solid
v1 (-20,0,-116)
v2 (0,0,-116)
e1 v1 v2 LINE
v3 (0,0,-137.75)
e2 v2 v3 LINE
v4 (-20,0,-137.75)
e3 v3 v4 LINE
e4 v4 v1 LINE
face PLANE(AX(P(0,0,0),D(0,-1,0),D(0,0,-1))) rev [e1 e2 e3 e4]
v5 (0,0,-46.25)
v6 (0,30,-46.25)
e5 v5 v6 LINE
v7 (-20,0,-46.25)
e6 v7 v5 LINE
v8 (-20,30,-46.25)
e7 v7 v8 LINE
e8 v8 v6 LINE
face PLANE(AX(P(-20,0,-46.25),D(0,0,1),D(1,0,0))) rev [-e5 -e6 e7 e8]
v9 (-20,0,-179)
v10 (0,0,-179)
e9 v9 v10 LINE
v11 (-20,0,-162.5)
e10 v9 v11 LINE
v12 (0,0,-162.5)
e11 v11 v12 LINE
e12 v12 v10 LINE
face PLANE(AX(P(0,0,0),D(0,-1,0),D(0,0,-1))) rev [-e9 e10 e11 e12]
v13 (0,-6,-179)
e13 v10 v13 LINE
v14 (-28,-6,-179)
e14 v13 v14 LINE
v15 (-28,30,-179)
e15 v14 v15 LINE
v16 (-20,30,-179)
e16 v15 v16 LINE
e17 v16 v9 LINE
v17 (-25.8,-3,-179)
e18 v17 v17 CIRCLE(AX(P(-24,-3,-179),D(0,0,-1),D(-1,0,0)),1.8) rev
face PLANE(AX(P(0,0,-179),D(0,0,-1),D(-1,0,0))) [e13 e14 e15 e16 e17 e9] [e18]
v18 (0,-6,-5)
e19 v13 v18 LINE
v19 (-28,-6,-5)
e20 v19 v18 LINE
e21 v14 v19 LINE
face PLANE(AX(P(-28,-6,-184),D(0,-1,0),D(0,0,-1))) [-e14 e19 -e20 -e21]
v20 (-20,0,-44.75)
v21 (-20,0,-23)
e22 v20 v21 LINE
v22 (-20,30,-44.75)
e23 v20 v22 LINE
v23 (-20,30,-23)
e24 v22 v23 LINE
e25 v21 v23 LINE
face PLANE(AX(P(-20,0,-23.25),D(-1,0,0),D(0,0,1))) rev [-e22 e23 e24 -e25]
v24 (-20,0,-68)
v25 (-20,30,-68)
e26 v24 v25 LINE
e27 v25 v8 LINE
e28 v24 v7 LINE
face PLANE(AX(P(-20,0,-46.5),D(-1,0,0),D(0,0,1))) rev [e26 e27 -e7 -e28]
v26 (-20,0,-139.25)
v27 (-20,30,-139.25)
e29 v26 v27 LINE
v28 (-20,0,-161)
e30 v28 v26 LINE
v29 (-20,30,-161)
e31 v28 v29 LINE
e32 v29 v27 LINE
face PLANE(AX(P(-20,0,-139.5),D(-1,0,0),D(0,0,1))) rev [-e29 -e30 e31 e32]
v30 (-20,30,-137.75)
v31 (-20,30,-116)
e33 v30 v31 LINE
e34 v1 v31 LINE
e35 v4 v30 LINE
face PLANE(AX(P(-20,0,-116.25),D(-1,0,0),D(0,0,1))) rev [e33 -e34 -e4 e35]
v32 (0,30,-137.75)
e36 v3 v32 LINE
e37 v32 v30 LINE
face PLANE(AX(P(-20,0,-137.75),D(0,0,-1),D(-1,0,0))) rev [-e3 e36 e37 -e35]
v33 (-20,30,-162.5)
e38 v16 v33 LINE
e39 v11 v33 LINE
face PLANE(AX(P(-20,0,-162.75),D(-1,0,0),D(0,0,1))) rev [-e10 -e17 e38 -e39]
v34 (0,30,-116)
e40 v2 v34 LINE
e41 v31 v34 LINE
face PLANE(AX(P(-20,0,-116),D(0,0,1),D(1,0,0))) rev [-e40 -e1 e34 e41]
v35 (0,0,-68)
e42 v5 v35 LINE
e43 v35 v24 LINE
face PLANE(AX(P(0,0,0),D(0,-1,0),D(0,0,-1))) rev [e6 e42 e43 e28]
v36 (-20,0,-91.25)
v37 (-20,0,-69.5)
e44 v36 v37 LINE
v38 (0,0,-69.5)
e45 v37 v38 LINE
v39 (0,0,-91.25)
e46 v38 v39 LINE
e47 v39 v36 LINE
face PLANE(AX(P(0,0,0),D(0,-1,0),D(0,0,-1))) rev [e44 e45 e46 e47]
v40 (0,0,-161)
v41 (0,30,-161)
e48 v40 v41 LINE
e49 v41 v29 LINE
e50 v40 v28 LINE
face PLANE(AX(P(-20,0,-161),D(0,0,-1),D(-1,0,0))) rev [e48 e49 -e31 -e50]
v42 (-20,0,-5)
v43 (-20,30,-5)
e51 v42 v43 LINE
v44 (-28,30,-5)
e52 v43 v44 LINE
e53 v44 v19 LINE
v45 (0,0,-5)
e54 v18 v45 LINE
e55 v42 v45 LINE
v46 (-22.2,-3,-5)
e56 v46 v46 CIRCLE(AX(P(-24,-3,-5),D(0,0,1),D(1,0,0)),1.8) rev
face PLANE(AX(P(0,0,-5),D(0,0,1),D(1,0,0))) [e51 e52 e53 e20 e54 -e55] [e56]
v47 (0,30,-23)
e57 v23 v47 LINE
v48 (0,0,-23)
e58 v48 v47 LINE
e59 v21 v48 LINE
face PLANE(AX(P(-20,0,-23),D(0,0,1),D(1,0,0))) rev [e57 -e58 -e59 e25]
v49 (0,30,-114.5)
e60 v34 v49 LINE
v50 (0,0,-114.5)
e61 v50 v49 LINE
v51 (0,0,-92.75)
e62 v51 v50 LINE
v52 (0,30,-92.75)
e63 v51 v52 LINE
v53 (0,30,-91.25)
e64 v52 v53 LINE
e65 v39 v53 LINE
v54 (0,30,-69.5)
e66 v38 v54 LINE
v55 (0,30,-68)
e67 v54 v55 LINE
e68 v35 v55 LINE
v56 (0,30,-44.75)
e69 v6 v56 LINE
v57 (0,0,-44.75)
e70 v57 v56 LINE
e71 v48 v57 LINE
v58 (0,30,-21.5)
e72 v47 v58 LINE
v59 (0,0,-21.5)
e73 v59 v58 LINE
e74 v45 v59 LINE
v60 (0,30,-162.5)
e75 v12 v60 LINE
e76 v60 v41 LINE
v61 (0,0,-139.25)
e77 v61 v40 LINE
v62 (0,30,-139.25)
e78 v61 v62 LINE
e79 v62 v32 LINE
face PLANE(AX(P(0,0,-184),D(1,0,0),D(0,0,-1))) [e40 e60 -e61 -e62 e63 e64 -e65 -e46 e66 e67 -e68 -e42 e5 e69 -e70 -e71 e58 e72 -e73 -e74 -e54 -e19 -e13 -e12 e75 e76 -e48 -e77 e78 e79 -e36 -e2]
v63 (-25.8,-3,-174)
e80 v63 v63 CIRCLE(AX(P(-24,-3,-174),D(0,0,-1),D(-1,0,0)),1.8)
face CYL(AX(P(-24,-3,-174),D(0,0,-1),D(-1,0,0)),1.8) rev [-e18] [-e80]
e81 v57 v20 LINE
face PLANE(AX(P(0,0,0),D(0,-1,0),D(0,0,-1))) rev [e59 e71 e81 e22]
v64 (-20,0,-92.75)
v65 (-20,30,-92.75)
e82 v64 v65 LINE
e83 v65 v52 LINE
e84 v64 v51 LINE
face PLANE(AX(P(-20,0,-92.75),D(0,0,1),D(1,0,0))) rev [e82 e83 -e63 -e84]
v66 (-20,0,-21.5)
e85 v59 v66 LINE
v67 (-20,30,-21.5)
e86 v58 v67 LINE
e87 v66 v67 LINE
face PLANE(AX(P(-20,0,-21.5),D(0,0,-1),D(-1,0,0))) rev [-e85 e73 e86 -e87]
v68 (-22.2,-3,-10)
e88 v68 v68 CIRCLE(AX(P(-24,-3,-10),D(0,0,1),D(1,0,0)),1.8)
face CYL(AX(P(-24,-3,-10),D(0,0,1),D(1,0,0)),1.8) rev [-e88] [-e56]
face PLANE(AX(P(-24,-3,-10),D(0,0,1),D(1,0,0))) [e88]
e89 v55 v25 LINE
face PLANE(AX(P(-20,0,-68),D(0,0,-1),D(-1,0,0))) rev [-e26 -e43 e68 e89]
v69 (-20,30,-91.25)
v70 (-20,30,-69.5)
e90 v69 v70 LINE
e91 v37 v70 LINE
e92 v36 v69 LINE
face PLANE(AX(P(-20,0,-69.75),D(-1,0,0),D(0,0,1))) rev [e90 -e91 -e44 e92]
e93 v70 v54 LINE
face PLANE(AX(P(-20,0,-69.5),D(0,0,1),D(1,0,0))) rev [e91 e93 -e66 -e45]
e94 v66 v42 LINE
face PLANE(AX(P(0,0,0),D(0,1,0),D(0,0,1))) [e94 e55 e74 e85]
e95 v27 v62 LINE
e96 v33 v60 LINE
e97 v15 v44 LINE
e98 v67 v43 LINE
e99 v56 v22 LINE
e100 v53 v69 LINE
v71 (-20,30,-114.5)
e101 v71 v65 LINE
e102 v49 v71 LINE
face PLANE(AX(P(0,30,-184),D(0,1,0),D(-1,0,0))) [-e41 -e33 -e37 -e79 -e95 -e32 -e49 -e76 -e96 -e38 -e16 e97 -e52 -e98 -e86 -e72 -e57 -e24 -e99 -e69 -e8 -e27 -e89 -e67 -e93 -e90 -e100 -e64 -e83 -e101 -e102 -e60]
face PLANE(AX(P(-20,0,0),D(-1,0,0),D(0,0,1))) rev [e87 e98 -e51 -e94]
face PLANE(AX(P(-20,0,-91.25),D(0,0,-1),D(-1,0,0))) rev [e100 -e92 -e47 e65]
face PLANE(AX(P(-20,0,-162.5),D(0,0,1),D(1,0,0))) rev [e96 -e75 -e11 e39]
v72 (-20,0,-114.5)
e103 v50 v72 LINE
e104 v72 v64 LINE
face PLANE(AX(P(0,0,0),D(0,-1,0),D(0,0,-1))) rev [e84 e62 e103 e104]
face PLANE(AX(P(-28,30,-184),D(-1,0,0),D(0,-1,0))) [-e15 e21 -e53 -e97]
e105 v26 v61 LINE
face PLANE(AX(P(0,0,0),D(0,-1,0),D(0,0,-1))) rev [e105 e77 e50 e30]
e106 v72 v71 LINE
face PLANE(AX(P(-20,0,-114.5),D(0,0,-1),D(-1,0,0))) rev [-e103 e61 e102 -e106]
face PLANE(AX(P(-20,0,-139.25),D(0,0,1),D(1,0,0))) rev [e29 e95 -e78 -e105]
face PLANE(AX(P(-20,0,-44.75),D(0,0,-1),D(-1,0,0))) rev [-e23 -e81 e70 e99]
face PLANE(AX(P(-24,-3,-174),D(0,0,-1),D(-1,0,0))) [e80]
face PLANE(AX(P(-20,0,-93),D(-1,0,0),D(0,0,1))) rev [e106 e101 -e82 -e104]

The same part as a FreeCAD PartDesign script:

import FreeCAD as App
import Part
import Sketcher
Q = App.Units.Quantity

doc = App.newDocument("Part")
body = doc.addObject("PartDesign::Body", "Body")

# Sketch on XY plane
sketch1 = body.newObject("Sketcher::SketchObject", "Sketch")
sketch1.AttachmentSupport = (doc.getObject("XY_Plane"), [""])
sketch1.MapMode = "FlatFace"
sketch1.addGeometry([
    Part.LineSegment(App.Vector(0, -6, 0), App.Vector(0, 30, 0)),
    Part.LineSegment(App.Vector(0, 30, 0), App.Vector(-28, 30, 0)),
    Part.LineSegment(App.Vector(-28, 30, 0), App.Vector(-28, -6, 0)),
    Part.LineSegment(App.Vector(-28, -6, 0), App.Vector(0, -6, 0)),
], False)
sketch1.addConstraint([
    Sketcher.Constraint("Coincident", 0, 2, 1, 1),
    Sketcher.Constraint("Coincident", 1, 2, 2, 1),
    Sketcher.Constraint("Coincident", 2, 2, 3, 1),
    Sketcher.Constraint("Coincident", 3, 2, 0, 1),
    Sketcher.Constraint("Vertical", 0),
    Sketcher.Constraint("Horizontal", 1),
    Sketcher.Constraint("Vertical", 2),
    Sketcher.Constraint("Horizontal", 3),
    Sketcher.Constraint("PointOnObject", 0, 2, -2),
    Sketcher.Constraint("DistanceX", 1, 2, 1, 1, Q("28 mm")),
    Sketcher.Constraint("DistanceY", 0, 1, 0, 2, Q("36 mm")),
    Sketcher.Constraint("DistanceY", -1, 1, 0, 2, Q("30 mm")),
])
pad1 = body.newObject("PartDesign::Pad", "Pad")
pad1.Profile = sketch1
pad1.Length = 184
pad1.Reversed = True

# Sketch on XZ plane
sketch2 = body.newObject("Sketcher::SketchObject", "Sketch001")
sketch2.AttachmentSupport = (doc.getObject("XZ_Plane"), [""])
sketch2.MapMode = "FlatFace"
sketch2.AttachmentOffset = App.Placement(App.Vector(0, 0, -30), App.Rotation())
sketch2.addGeometry([
    Part.LineSegment(App.Vector(-20, -44.5, 0), App.Vector(-20, -23.25, 0)),  # 0
    Part.LineSegment(App.Vector(-20, -23.25, 0), App.Vector(0, -23.25, 0)),  # 1
    Part.LineSegment(App.Vector(0, -23.25, 0), App.Vector(0, -44.5, 0)),  # 2
    Part.LineSegment(App.Vector(0, -44.5, 0), App.Vector(-20, -44.5, 0)),  # 3
    Part.LineSegment(App.Vector(-20, -21.25, 0), App.Vector(-20, 0, 0)),  # 4
    Part.LineSegment(App.Vector(-20, 0, 0), App.Vector(0, 0, 0)),  # 5
    Part.LineSegment(App.Vector(0, 0, 0), App.Vector(0, -21.25, 0)),  # 6
    Part.LineSegment(App.Vector(0, -21.25, 0), App.Vector(-20, -21.25, 0)),  # 7
    Part.LineSegment(App.Vector(-20, -67.75, 0), App.Vector(-20, -46.5, 0)),  # 8
    Part.LineSegment(App.Vector(-20, -46.5, 0), App.Vector(0, -46.5, 0)),  # 9
    Part.LineSegment(App.Vector(0, -46.5, 0), App.Vector(0, -67.75, 0)),  # 10
    Part.LineSegment(App.Vector(0, -67.75, 0), App.Vector(-20, -67.75, 0)),  # 11
    Part.LineSegment(App.Vector(-20, -91, 0), App.Vector(-20, -69.75, 0)),  # 12
    Part.LineSegment(App.Vector(-20, -69.75, 0), App.Vector(0, -69.75, 0)),  # 13
    Part.LineSegment(App.Vector(0, -69.75, 0), App.Vector(0, -91, 0)),  # 14
    Part.LineSegment(App.Vector(0, -91, 0), App.Vector(-20, -91, 0)),  # 15
    Part.LineSegment(App.Vector(-20, -114.25, 0), App.Vector(-20, -93, 0)),  # 16
    Part.LineSegment(App.Vector(-20, -93, 0), App.Vector(0, -93, 0)),  # 17
    Part.LineSegment(App.Vector(0, -93, 0), App.Vector(0, -114.25, 0)),  # 18
    Part.LineSegment(App.Vector(0, -114.25, 0), App.Vector(-20, -114.25, 0)),  # 19
    Part.LineSegment(App.Vector(-20, -137.5, 0), App.Vector(-20, -116.25, 0)),  # 20
    Part.LineSegment(App.Vector(-20, -116.25, 0), App.Vector(0, -116.25, 0)),  # 21
    Part.LineSegment(App.Vector(0, -116.25, 0), App.Vector(0, -137.5, 0)),  # 22
    Part.LineSegment(App.Vector(0, -137.5, 0), App.Vector(-20, -137.5, 0)),  # 23
    Part.LineSegment(App.Vector(-20, -160.75, 0), App.Vector(-20, -139.5, 0)),  # 24
    Part.LineSegment(App.Vector(-20, -139.5, 0), App.Vector(0, -139.5, 0)),  # 25
    Part.LineSegment(App.Vector(0, -139.5, 0), App.Vector(0, -160.75, 0)),  # 26
    Part.LineSegment(App.Vector(0, -160.75, 0), App.Vector(-20, -160.75, 0)),  # 27
    Part.LineSegment(App.Vector(-20, -184, 0), App.Vector(-20, -162.75, 0)),  # 28
    Part.LineSegment(App.Vector(-20, -162.75, 0), App.Vector(0, -162.75, 0)),  # 29
    Part.LineSegment(App.Vector(0, -162.75, 0), App.Vector(0, -184, 0)),  # 30
    Part.LineSegment(App.Vector(0, -184, 0), App.Vector(-20, -184, 0)),  # 31
], False)
sketch2.addConstraint([
    Sketcher.Constraint("Coincident", 0, 2, 1, 1),
    Sketcher.Constraint("Coincident", 1, 2, 2, 1),
    Sketcher.Constraint("Coincident", 2, 2, 3, 1),
    Sketcher.Constraint("Coincident", 3, 2, 0, 1),
    Sketcher.Constraint("Coincident", 4, 2, 5, 1),
    Sketcher.Constraint("Coincident", 5, 2, 6, 1),
    Sketcher.Constraint("Coincident", 6, 2, 7, 1),
    Sketcher.Constraint("Coincident", 7, 2, 4, 1),
    Sketcher.Constraint("Coincident", 8, 2, 9, 1),
    Sketcher.Constraint("Coincident", 9, 2, 10, 1),
    Sketcher.Constraint("Coincident", 10, 2, 11, 1),
    Sketcher.Constraint("Coincident", 11, 2, 8, 1),
    Sketcher.Constraint("Coincident", 12, 2, 13, 1),
    Sketcher.Constraint("Coincident", 13, 2, 14, 1),
    Sketcher.Constraint("Coincident", 14, 2, 15, 1),
    Sketcher.Constraint("Coincident", 15, 2, 12, 1),
    Sketcher.Constraint("Coincident", 16, 2, 17, 1),
    Sketcher.Constraint("Coincident", 17, 2, 18, 1),
    Sketcher.Constraint("Coincident", 18, 2, 19, 1),
    Sketcher.Constraint("Coincident", 19, 2, 16, 1),
    Sketcher.Constraint("Coincident", 20, 2, 21, 1),
    Sketcher.Constraint("Coincident", 21, 2, 22, 1),
    Sketcher.Constraint("Coincident", 22, 2, 23, 1),
    Sketcher.Constraint("Coincident", 23, 2, 20, 1),
    Sketcher.Constraint("Coincident", 24, 2, 25, 1),
    Sketcher.Constraint("Coincident", 25, 2, 26, 1),
    Sketcher.Constraint("Coincident", 26, 2, 27, 1),
    Sketcher.Constraint("Coincident", 27, 2, 24, 1),
    Sketcher.Constraint("Coincident", 28, 2, 29, 1),
    Sketcher.Constraint("Coincident", 29, 2, 30, 1),
    Sketcher.Constraint("Coincident", 30, 2, 31, 1),
    Sketcher.Constraint("Coincident", 31, 2, 28, 1),
    Sketcher.Constraint("Vertical", 0),
    Sketcher.Constraint("Horizontal", 1),
    Sketcher.Constraint("Vertical", 2),
    Sketcher.Constraint("Horizontal", 3),
    Sketcher.Constraint("Vertical", 4),
    Sketcher.Constraint("Horizontal", 5),
    Sketcher.Constraint("Vertical", 6),
    Sketcher.Constraint("Horizontal", 7),
    Sketcher.Constraint("Vertical", 8),
    Sketcher.Constraint("Horizontal", 9),
    Sketcher.Constraint("Vertical", 10),
    Sketcher.Constraint("Horizontal", 11),
    Sketcher.Constraint("Vertical", 12),
    Sketcher.Constraint("Horizontal", 13),
    Sketcher.Constraint("Vertical", 14),
    Sketcher.Constraint("Horizontal", 15),
    Sketcher.Constraint("Vertical", 16),
    Sketcher.Constraint("Horizontal", 17),
    Sketcher.Constraint("Vertical", 18),
    Sketcher.Constraint("Horizontal", 19),
    Sketcher.Constraint("Vertical", 20),
    Sketcher.Constraint("Horizontal", 21),
    Sketcher.Constraint("Vertical", 22),
    Sketcher.Constraint("Horizontal", 23),
    Sketcher.Constraint("Vertical", 24),
    Sketcher.Constraint("Horizontal", 25),
    Sketcher.Constraint("Vertical", 26),
    Sketcher.Constraint("Horizontal", 27),
    Sketcher.Constraint("Vertical", 28),
    Sketcher.Constraint("Horizontal", 29),
    Sketcher.Constraint("Vertical", 30),
    Sketcher.Constraint("Horizontal", 31),
    Sketcher.Constraint("Coincident", 5, 2, -1, 1),
    Sketcher.Constraint("PointOnObject", 1, 2, -2),
    Sketcher.Constraint("PointOnObject", 9, 2, -2),
    Sketcher.Constraint("PointOnObject", 13, 2, -2),
    Sketcher.Constraint("PointOnObject", 17, 2, -2),
    Sketcher.Constraint("PointOnObject", 21, 2, -2),
    Sketcher.Constraint("PointOnObject", 25, 2, -2),
    Sketcher.Constraint("PointOnObject", 29, 2, -2),
    Sketcher.Constraint("Vertical", 3, 2, 4, 2),
    Sketcher.Constraint("Vertical", 7, 2, 8, 2),
    Sketcher.Constraint("Vertical", 11, 2, 12, 2),
    Sketcher.Constraint("Vertical", 15, 2, 16, 2),
    Sketcher.Constraint("Vertical", 19, 2, 20, 2),
    Sketcher.Constraint("Vertical", 23, 2, 24, 2),
    Sketcher.Constraint("Vertical", 27, 2, 28, 2),
    Sketcher.Constraint("Equal", 2, 4),
    Sketcher.Constraint("Equal", 6, 8),
    Sketcher.Constraint("Equal", 10, 12),
    Sketcher.Constraint("Equal", 14, 16),
    Sketcher.Constraint("Equal", 18, 20),
    Sketcher.Constraint("Equal", 22, 24),
    Sketcher.Constraint("Equal", 26, 28),
    Sketcher.Constraint("DistanceX", 1, 1, 1, 2, Q("20 mm")),
    Sketcher.Constraint("DistanceY", 14, 2, -1, 1, Q("91 mm")),
    Sketcher.Constraint("DistanceY", 16, 2, -1, 1, Q("93 mm")),
    Sketcher.Constraint("DistanceY", 30, 2, -1, 1, Q("184 mm")),
    Sketcher.Constraint("DistanceY", 1, 2, 6, 2, Q("2 mm")),
    Sketcher.Constraint("DistanceY", 8, 2, 3, 2, Q("2 mm")),
    Sketcher.Constraint("DistanceY", 12, 2, 11, 2, Q("2 mm")),
    Sketcher.Constraint("DistanceY", 20, 2, 19, 2, Q("2 mm")),
    Sketcher.Constraint("DistanceY", 24, 2, 23, 2, Q("2 mm")),
])
pocket1 = body.newObject("PartDesign::Pocket", "Pocket")
pocket1.Profile = sketch2
pocket1.Length = 30
pocket1.Reversed = True

# Sketch on XZ plane
sketch3 = body.newObject("Sketcher::SketchObject", "Sketch002")
sketch3.AttachmentSupport = (doc.getObject("XZ_Plane"), [""])
sketch3.MapMode = "FlatFace"
sketch3.AttachmentOffset = App.Placement(App.Vector(0, 0, -30), App.Rotation())
sketch3.addGeometry([
    Part.LineSegment(App.Vector(-20, -21.5, 0), App.Vector(-20, -21.25, 0)),  # 0
    Part.LineSegment(App.Vector(-20, -21.25, 0), App.Vector(0, -21.25, 0)),  # 1
    Part.LineSegment(App.Vector(0, -21.25, 0), App.Vector(0, -21.5, 0)),  # 2
    Part.LineSegment(App.Vector(0, -21.5, 0), App.Vector(-20, -21.5, 0)),  # 3
    Part.LineSegment(App.Vector(-20, -23.25, 0), App.Vector(-20, -23, 0)),  # 4
    Part.LineSegment(App.Vector(-20, -23, 0), App.Vector(0, -23, 0)),  # 5
    Part.LineSegment(App.Vector(0, -23, 0), App.Vector(0, -23.25, 0)),  # 6
    Part.LineSegment(App.Vector(0, -23.25, 0), App.Vector(-20, -23.25, 0)),  # 7
    Part.LineSegment(App.Vector(-20, -44.75, 0), App.Vector(-20, -44.5, 0)),  # 8
    Part.LineSegment(App.Vector(-20, -44.5, 0), App.Vector(0, -44.5, 0)),  # 9
    Part.LineSegment(App.Vector(0, -44.5, 0), App.Vector(0, -44.75, 0)),  # 10
    Part.LineSegment(App.Vector(0, -44.75, 0), App.Vector(-20, -44.75, 0)),  # 11
    Part.LineSegment(App.Vector(-20, -46.5, 0), App.Vector(-20, -46.25, 0)),  # 12
    Part.LineSegment(App.Vector(-20, -46.25, 0), App.Vector(0, -46.25, 0)),  # 13
    Part.LineSegment(App.Vector(0, -46.25, 0), App.Vector(0, -46.5, 0)),  # 14
    Part.LineSegment(App.Vector(0, -46.5, 0), App.Vector(-20, -46.5, 0)),  # 15
    Part.LineSegment(App.Vector(-20, -68, 0), App.Vector(-20, -67.75, 0)),  # 16
    Part.LineSegment(App.Vector(-20, -67.75, 0), App.Vector(0, -67.75, 0)),  # 17
    Part.LineSegment(App.Vector(0, -67.75, 0), App.Vector(0, -68, 0)),  # 18
    Part.LineSegment(App.Vector(0, -68, 0), App.Vector(-20, -68, 0)),  # 19
    Part.LineSegment(App.Vector(-20, -69.75, 0), App.Vector(-20, -69.5, 0)),  # 20
    Part.LineSegment(App.Vector(-20, -69.5, 0), App.Vector(0, -69.5, 0)),  # 21
    Part.LineSegment(App.Vector(0, -69.5, 0), App.Vector(0, -69.75, 0)),  # 22
    Part.LineSegment(App.Vector(0, -69.75, 0), App.Vector(-20, -69.75, 0)),  # 23
    Part.LineSegment(App.Vector(-20, -91.25, 0), App.Vector(-20, -91, 0)),  # 24
    Part.LineSegment(App.Vector(-20, -91, 0), App.Vector(0, -91, 0)),  # 25
    Part.LineSegment(App.Vector(0, -91, 0), App.Vector(0, -91.25, 0)),  # 26
    Part.LineSegment(App.Vector(0, -91.25, 0), App.Vector(-20, -91.25, 0)),  # 27
    Part.LineSegment(App.Vector(-20, -93, 0), App.Vector(-20, -92.75, 0)),  # 28
    Part.LineSegment(App.Vector(-20, -92.75, 0), App.Vector(0, -92.75, 0)),  # 29
    Part.LineSegment(App.Vector(0, -92.75, 0), App.Vector(0, -93, 0)),  # 30
    Part.LineSegment(App.Vector(0, -93, 0), App.Vector(-20, -93, 0)),  # 31
    Part.LineSegment(App.Vector(-20, -114.5, 0), App.Vector(-20, -114.25, 0)),  # 32
    Part.LineSegment(App.Vector(-20, -114.25, 0), App.Vector(0, -114.25, 0)),  # 33
    Part.LineSegment(App.Vector(0, -114.25, 0), App.Vector(0, -114.5, 0)),  # 34
    Part.LineSegment(App.Vector(0, -114.5, 0), App.Vector(-20, -114.5, 0)),  # 35
    Part.LineSegment(App.Vector(-20, -116.25, 0), App.Vector(-20, -116, 0)),  # 36
    Part.LineSegment(App.Vector(-20, -116, 0), App.Vector(0, -116, 0)),  # 37
    Part.LineSegment(App.Vector(0, -116, 0), App.Vector(0, -116.25, 0)),  # 38
    Part.LineSegment(App.Vector(0, -116.25, 0), App.Vector(-20, -116.25, 0)),  # 39
    Part.LineSegment(App.Vector(-20, -137.75, 0), App.Vector(-20, -137.5, 0)),  # 40
    Part.LineSegment(App.Vector(-20, -137.5, 0), App.Vector(0, -137.5, 0)),  # 41
    Part.LineSegment(App.Vector(0, -137.5, 0), App.Vector(0, -137.75, 0)),  # 42
    Part.LineSegment(App.Vector(0, -137.75, 0), App.Vector(-20, -137.75, 0)),  # 43
    Part.LineSegment(App.Vector(-20, -139.5, 0), App.Vector(-20, -139.25, 0)),  # 44
    Part.LineSegment(App.Vector(-20, -139.25, 0), App.Vector(0, -139.25, 0)),  # 45
    Part.LineSegment(App.Vector(0, -139.25, 0), App.Vector(0, -139.5, 0)),  # 46
    Part.LineSegment(App.Vector(0, -139.5, 0), App.Vector(-20, -139.5, 0)),  # 47
    Part.LineSegment(App.Vector(-20, -161, 0), App.Vector(-20, -160.75, 0)),  # 48
    Part.LineSegment(App.Vector(-20, -160.75, 0), App.Vector(0, -160.75, 0)),  # 49
    Part.LineSegment(App.Vector(0, -160.75, 0), App.Vector(0, -161, 0)),  # 50
    Part.LineSegment(App.Vector(0, -161, 0), App.Vector(-20, -161, 0)),  # 51
    Part.LineSegment(App.Vector(-20, -162.75, 0), App.Vector(-20, -162.5, 0)),  # 52
    Part.LineSegment(App.Vector(-20, -162.5, 0), App.Vector(0, -162.5, 0)),  # 53
    Part.LineSegment(App.Vector(0, -162.5, 0), App.Vector(0, -162.75, 0)),  # 54
    Part.LineSegment(App.Vector(0, -162.75, 0), App.Vector(-20, -162.75, 0)),  # 55
], False)
sketch3.addConstraint([
    Sketcher.Constraint("Coincident", 0, 2, 1, 1),
    Sketcher.Constraint("Coincident", 1, 2, 2, 1),
    Sketcher.Constraint("Coincident", 2, 2, 3, 1),
    Sketcher.Constraint("Coincident", 3, 2, 0, 1),
    Sketcher.Constraint("Coincident", 4, 2, 5, 1),
    Sketcher.Constraint("Coincident", 5, 2, 6, 1),
    Sketcher.Constraint("Coincident", 6, 2, 7, 1),
    Sketcher.Constraint("Coincident", 7, 2, 4, 1),
    Sketcher.Constraint("Coincident", 8, 2, 9, 1),
    Sketcher.Constraint("Coincident", 9, 2, 10, 1),
    Sketcher.Constraint("Coincident", 10, 2, 11, 1),
    Sketcher.Constraint("Coincident", 11, 2, 8, 1),
    Sketcher.Constraint("Coincident", 12, 2, 13, 1),
    Sketcher.Constraint("Coincident", 13, 2, 14, 1),
    Sketcher.Constraint("Coincident", 14, 2, 15, 1),
    Sketcher.Constraint("Coincident", 15, 2, 12, 1),
    Sketcher.Constraint("Coincident", 16, 2, 17, 1),
    Sketcher.Constraint("Coincident", 17, 2, 18, 1),
    Sketcher.Constraint("Coincident", 18, 2, 19, 1),
    Sketcher.Constraint("Coincident", 19, 2, 16, 1),
    Sketcher.Constraint("Coincident", 20, 2, 21, 1),
    Sketcher.Constraint("Coincident", 21, 2, 22, 1),
    Sketcher.Constraint("Coincident", 22, 2, 23, 1),
    Sketcher.Constraint("Coincident", 23, 2, 20, 1),
    Sketcher.Constraint("Coincident", 24, 2, 25, 1),
    Sketcher.Constraint("Coincident", 25, 2, 26, 1),
    Sketcher.Constraint("Coincident", 26, 2, 27, 1),
    Sketcher.Constraint("Coincident", 27, 2, 24, 1),
    Sketcher.Constraint("Coincident", 28, 2, 29, 1),
    Sketcher.Constraint("Coincident", 29, 2, 30, 1),
    Sketcher.Constraint("Coincident", 30, 2, 31, 1),
    Sketcher.Constraint("Coincident", 31, 2, 28, 1),
    Sketcher.Constraint("Coincident", 32, 2, 33, 1),
    Sketcher.Constraint("Coincident", 33, 2, 34, 1),
    Sketcher.Constraint("Coincident", 34, 2, 35, 1),
    Sketcher.Constraint("Coincident", 35, 2, 32, 1),
    Sketcher.Constraint("Coincident", 36, 2, 37, 1),
    Sketcher.Constraint("Coincident", 37, 2, 38, 1),
    Sketcher.Constraint("Coincident", 38, 2, 39, 1),
    Sketcher.Constraint("Coincident", 39, 2, 36, 1),
    Sketcher.Constraint("Coincident", 40, 2, 41, 1),
    Sketcher.Constraint("Coincident", 41, 2, 42, 1),
    Sketcher.Constraint("Coincident", 42, 2, 43, 1),
    Sketcher.Constraint("Coincident", 43, 2, 40, 1),
    Sketcher.Constraint("Coincident", 44, 2, 45, 1),
    Sketcher.Constraint("Coincident", 45, 2, 46, 1),
    Sketcher.Constraint("Coincident", 46, 2, 47, 1),
    Sketcher.Constraint("Coincident", 47, 2, 44, 1),
    Sketcher.Constraint("Coincident", 48, 2, 49, 1),
    Sketcher.Constraint("Coincident", 49, 2, 50, 1),
    Sketcher.Constraint("Coincident", 50, 2, 51, 1),
    Sketcher.Constraint("Coincident", 51, 2, 48, 1),
    Sketcher.Constraint("Coincident", 52, 2, 53, 1),
    Sketcher.Constraint("Coincident", 53, 2, 54, 1),
    Sketcher.Constraint("Coincident", 54, 2, 55, 1),
    Sketcher.Constraint("Coincident", 55, 2, 52, 1),
    Sketcher.Constraint("Vertical", 0),
    Sketcher.Constraint("Horizontal", 1),
    Sketcher.Constraint("Vertical", 2),
    Sketcher.Constraint("Horizontal", 3),
    Sketcher.Constraint("Vertical", 4),
    Sketcher.Constraint("Horizontal", 5),
    Sketcher.Constraint("Vertical", 6),
    Sketcher.Constraint("Horizontal", 7),
    Sketcher.Constraint("Vertical", 8),
    Sketcher.Constraint("Horizontal", 9),
    Sketcher.Constraint("Vertical", 10),
    Sketcher.Constraint("Horizontal", 11),
    Sketcher.Constraint("Vertical", 12),
    Sketcher.Constraint("Horizontal", 13),
    Sketcher.Constraint("Vertical", 14),
    Sketcher.Constraint("Horizontal", 15),
    Sketcher.Constraint("Vertical", 16),
    Sketcher.Constraint("Horizontal", 17),
    Sketcher.Constraint("Vertical", 18),
    Sketcher.Constraint("Horizontal", 19),
    Sketcher.Constraint("Vertical", 20),
    Sketcher.Constraint("Horizontal", 21),
    Sketcher.Constraint("Vertical", 22),
    Sketcher.Constraint("Horizontal", 23),
    Sketcher.Constraint("Vertical", 24),
    Sketcher.Constraint("Horizontal", 25),
    Sketcher.Constraint("Vertical", 26),
    Sketcher.Constraint("Horizontal", 27),
    Sketcher.Constraint("Vertical", 28),
    Sketcher.Constraint("Horizontal", 29),
    Sketcher.Constraint("Vertical", 30),
    Sketcher.Constraint("Horizontal", 31),
    Sketcher.Constraint("Vertical", 32),
    Sketcher.Constraint("Horizontal", 33),
    Sketcher.Constraint("Vertical", 34),
    Sketcher.Constraint("Horizontal", 35),
    Sketcher.Constraint("Vertical", 36),
    Sketcher.Constraint("Horizontal", 37),
    Sketcher.Constraint("Vertical", 38),
    Sketcher.Constraint("Horizontal", 39),
    Sketcher.Constraint("Vertical", 40),
    Sketcher.Constraint("Horizontal", 41),
    Sketcher.Constraint("Vertical", 42),
    Sketcher.Constraint("Horizontal", 43),
    Sketcher.Constraint("Vertical", 44),
    Sketcher.Constraint("Horizontal", 45),
    Sketcher.Constraint("Vertical", 46),
    Sketcher.Constraint("Horizontal", 47),
    Sketcher.Constraint("Vertical", 48),
    Sketcher.Constraint("Horizontal", 49),
    Sketcher.Constraint("Vertical", 50),
    Sketcher.Constraint("Horizontal", 51),
    Sketcher.Constraint("Vertical", 52),
    Sketcher.Constraint("Horizontal", 53),
    Sketcher.Constraint("Vertical", 54),
    Sketcher.Constraint("Horizontal", 55),
    Sketcher.Constraint("PointOnObject", 1, 2, -2),
    Sketcher.Constraint("PointOnObject", 5, 2, -2),
    Sketcher.Constraint("PointOnObject", 9, 2, -2),
    Sketcher.Constraint("PointOnObject", 13, 2, -2),
    Sketcher.Constraint("PointOnObject", 17, 2, -2),
    Sketcher.Constraint("PointOnObject", 21, 2, -2),
    Sketcher.Constraint("PointOnObject", 25, 2, -2),
    Sketcher.Constraint("PointOnObject", 29, 2, -2),
    Sketcher.Constraint("PointOnObject", 33, 2, -2),
    Sketcher.Constraint("PointOnObject", 37, 2, -2),
    Sketcher.Constraint("PointOnObject", 41, 2, -2),
    Sketcher.Constraint("PointOnObject", 45, 2, -2),
    Sketcher.Constraint("PointOnObject", 49, 2, -2),
    Sketcher.Constraint("PointOnObject", 53, 2, -2),
    Sketcher.Constraint("Vertical", 3, 2, 4, 2),
    Sketcher.Constraint("Vertical", 7, 2, 8, 2),
    Sketcher.Constraint("Vertical", 11, 2, 12, 2),
    Sketcher.Constraint("Vertical", 15, 2, 16, 2),
    Sketcher.Constraint("Vertical", 19, 2, 20, 2),
    Sketcher.Constraint("Vertical", 23, 2, 24, 2),
    Sketcher.Constraint("Vertical", 27, 2, 28, 2),
    Sketcher.Constraint("Vertical", 31, 2, 32, 2),
    Sketcher.Constraint("Vertical", 35, 2, 36, 2),
    Sketcher.Constraint("Vertical", 39, 2, 40, 2),
    Sketcher.Constraint("Vertical", 43, 2, 44, 2),
    Sketcher.Constraint("Vertical", 47, 2, 48, 2),
    Sketcher.Constraint("Vertical", 51, 2, 52, 2),
    Sketcher.Constraint("Equal", 2, 4),
    Sketcher.Constraint("Equal", 6, 8),
    Sketcher.Constraint("Equal", 10, 12),
    Sketcher.Constraint("Equal", 14, 16),
    Sketcher.Constraint("Equal", 18, 20),
    Sketcher.Constraint("Equal", 22, 24),
    Sketcher.Constraint("Equal", 26, 28),
    Sketcher.Constraint("Equal", 30, 32),
    Sketcher.Constraint("Equal", 34, 36),
    Sketcher.Constraint("Equal", 38, 40),
    Sketcher.Constraint("Equal", 42, 44),
    Sketcher.Constraint("Equal", 46, 48),
    Sketcher.Constraint("Equal", 50, 52),
    Sketcher.Constraint("DistanceX", 1, 1, 1, 2, Q("20 mm")),
    Sketcher.Constraint("DistanceY", 4, 2, -1, 1, Q("23 mm")),
    Sketcher.Constraint("DistanceY", 18, 2, -1, 1, Q("68 mm")),
    Sketcher.Constraint("DistanceY", 24, 2, -1, 1, Q("91 mm")),
    Sketcher.Constraint("DistanceY", 30, 2, -1, 1, Q("93 mm")),
    Sketcher.Constraint("DistanceY", 36, 2, -1, 1, Q("116 mm")),
    Sketcher.Constraint("DistanceY", 50, 2, -1, 1, Q("161 mm")),
    Sketcher.Constraint("DistanceY", 6, 2, 1, 2, Q("2 mm")),
    Sketcher.Constraint("DistanceY", 8, 2, 3, 2, Q("23 mm")),
    Sketcher.Constraint("DistanceY", 12, 2, 7, 2, Q("23 mm")),
    Sketcher.Constraint("DistanceY", 16, 2, 11, 2, Q("23 mm")),
    Sketcher.Constraint("DistanceY", 20, 2, 15, 2, Q("23 mm")),
    Sketcher.Constraint("DistanceY", 32, 2, 27, 2, Q("23 mm")),
    Sketcher.Constraint("DistanceY", 40, 2, 35, 2, Q("23 mm")),
    Sketcher.Constraint("DistanceY", 44, 2, 39, 2, Q("23 mm")),
    Sketcher.Constraint("DistanceY", 52, 2, 47, 2, Q("23 mm")),
])
pocket2 = body.newObject("PartDesign::Pocket", "Pocket001")
pocket2.Profile = sketch3
pocket2.Length = 30
pocket2.Reversed = True

# Sketch on XY plane
sketch4 = body.newObject("Sketcher::SketchObject", "Sketch003")
sketch4.AttachmentSupport = (doc.getObject("XY_Plane"), [""])
sketch4.MapMode = "FlatFace"
sketch4.addGeometry(Part.Circle(App.Vector(-24, -3, 0), App.Vector(0, 0, 1), 1.8), False)
sketch4.addConstraint([
    Sketcher.Constraint("Diameter", 0, Q("3.6 mm")),
    Sketcher.Constraint("DistanceX", 0, 3, -1, 1, Q("24 mm")),
    Sketcher.Constraint("DistanceY", 0, 3, -1, 1, Q("3 mm")),
])
pocket3 = body.newObject("PartDesign::Pocket", "Pocket002")
pocket3.Profile = sketch4
pocket3.Length = 10

# Sketch on XY plane
sketch5 = body.newObject("Sketcher::SketchObject", "Sketch004")
sketch5.AttachmentSupport = (doc.getObject("XY_Plane"), [""])
sketch5.MapMode = "FlatFace"
sketch5.AttachmentOffset = App.Placement(App.Vector(0, 0, -174), App.Rotation())
sketch5.addGeometry(Part.Circle(App.Vector(-24, -3, 0), App.Vector(0, 0, 1), 1.8), False)
sketch5.addConstraint([
    Sketcher.Constraint("Diameter", 0, Q("3.6 mm")),
    Sketcher.Constraint("DistanceX", 0, 3, -1, 1, Q("24 mm")),
    Sketcher.Constraint("DistanceY", 0, 3, -1, 1, Q("3 mm")),
])
pocket4 = body.newObject("PartDesign::Pocket", "Pocket003")
pocket4.Profile = sketch5
pocket4.Length = 10

# Sketch on XY plane
sketch6 = body.newObject("Sketcher::SketchObject", "Sketch005")
sketch6.AttachmentSupport = (doc.getObject("XY_Plane"), [""])
sketch6.MapMode = "FlatFace"
sketch6.addGeometry([
    Part.LineSegment(App.Vector(-28, 30, 0), App.Vector(-28, -6, 0)),
    Part.LineSegment(App.Vector(-28, -6, 0), App.Vector(0, -6, 0)),
    Part.LineSegment(App.Vector(0, -6, 0), App.Vector(0, 30, 0)),
    Part.LineSegment(App.Vector(0, 30, 0), App.Vector(-28, 30, 0)),
], False)
sketch6.addConstraint([
    Sketcher.Constraint("Coincident", 0, 2, 1, 1),
    Sketcher.Constraint("Coincident", 1, 2, 2, 1),
    Sketcher.Constraint("Coincident", 2, 2, 3, 1),
    Sketcher.Constraint("Coincident", 3, 2, 0, 1),
    Sketcher.Constraint("Vertical", 0),
    Sketcher.Constraint("Horizontal", 1),
    Sketcher.Constraint("Vertical", 2),
    Sketcher.Constraint("Horizontal", 3),
    Sketcher.Constraint("PointOnObject", 1, 2, -2),
    Sketcher.Constraint("DistanceX", 1, 1, 1, 2, Q("28 mm")),
    Sketcher.Constraint("DistanceY", 0, 2, 0, 1, Q("36 mm")),
    Sketcher.Constraint("DistanceY", 0, 2, -1, 1, Q("6 mm")),
])
pocket5 = body.newObject("PartDesign::Pocket", "Pocket004")
pocket5.Profile = sketch6
pocket5.Length = 5

# Sketch on XY plane
sketch7 = body.newObject("Sketcher::SketchObject", "Sketch006")
sketch7.AttachmentSupport = (doc.getObject("XY_Plane"), [""])
sketch7.MapMode = "FlatFace"
sketch7.AttachmentOffset = App.Placement(App.Vector(0, 0, -184), App.Rotation())
sketch7.addGeometry([
    Part.LineSegment(App.Vector(0, 30, 0), App.Vector(0, -6, 0)),
    Part.LineSegment(App.Vector(0, -6, 0), App.Vector(-28, -6, 0)),
    Part.LineSegment(App.Vector(-28, -6, 0), App.Vector(-28, 30, 0)),
    Part.LineSegment(App.Vector(-28, 30, 0), App.Vector(0, 30, 0)),
], False)
sketch7.addConstraint([
    Sketcher.Constraint("Coincident", 0, 2, 1, 1),
    Sketcher.Constraint("Coincident", 1, 2, 2, 1),
    Sketcher.Constraint("Coincident", 2, 2, 3, 1),
    Sketcher.Constraint("Coincident", 3, 2, 0, 1),
    Sketcher.Constraint("Vertical", 0),
    Sketcher.Constraint("Horizontal", 1),
    Sketcher.Constraint("Vertical", 2),
    Sketcher.Constraint("Horizontal", 3),
    Sketcher.Constraint("PointOnObject", 0, 2, -2),
    Sketcher.Constraint("DistanceX", 1, 2, 1, 1, Q("28 mm")),
    Sketcher.Constraint("DistanceY", 0, 2, 0, 1, Q("36 mm")),
    Sketcher.Constraint("DistanceY", 0, 2, -1, 1, Q("6 mm")),
])
pocket6 = body.newObject("PartDesign::Pocket", "Pocket005")
pocket6.Profile = sketch7
pocket6.Length = 5
pocket6.Reversed = True

doc.recompute()
